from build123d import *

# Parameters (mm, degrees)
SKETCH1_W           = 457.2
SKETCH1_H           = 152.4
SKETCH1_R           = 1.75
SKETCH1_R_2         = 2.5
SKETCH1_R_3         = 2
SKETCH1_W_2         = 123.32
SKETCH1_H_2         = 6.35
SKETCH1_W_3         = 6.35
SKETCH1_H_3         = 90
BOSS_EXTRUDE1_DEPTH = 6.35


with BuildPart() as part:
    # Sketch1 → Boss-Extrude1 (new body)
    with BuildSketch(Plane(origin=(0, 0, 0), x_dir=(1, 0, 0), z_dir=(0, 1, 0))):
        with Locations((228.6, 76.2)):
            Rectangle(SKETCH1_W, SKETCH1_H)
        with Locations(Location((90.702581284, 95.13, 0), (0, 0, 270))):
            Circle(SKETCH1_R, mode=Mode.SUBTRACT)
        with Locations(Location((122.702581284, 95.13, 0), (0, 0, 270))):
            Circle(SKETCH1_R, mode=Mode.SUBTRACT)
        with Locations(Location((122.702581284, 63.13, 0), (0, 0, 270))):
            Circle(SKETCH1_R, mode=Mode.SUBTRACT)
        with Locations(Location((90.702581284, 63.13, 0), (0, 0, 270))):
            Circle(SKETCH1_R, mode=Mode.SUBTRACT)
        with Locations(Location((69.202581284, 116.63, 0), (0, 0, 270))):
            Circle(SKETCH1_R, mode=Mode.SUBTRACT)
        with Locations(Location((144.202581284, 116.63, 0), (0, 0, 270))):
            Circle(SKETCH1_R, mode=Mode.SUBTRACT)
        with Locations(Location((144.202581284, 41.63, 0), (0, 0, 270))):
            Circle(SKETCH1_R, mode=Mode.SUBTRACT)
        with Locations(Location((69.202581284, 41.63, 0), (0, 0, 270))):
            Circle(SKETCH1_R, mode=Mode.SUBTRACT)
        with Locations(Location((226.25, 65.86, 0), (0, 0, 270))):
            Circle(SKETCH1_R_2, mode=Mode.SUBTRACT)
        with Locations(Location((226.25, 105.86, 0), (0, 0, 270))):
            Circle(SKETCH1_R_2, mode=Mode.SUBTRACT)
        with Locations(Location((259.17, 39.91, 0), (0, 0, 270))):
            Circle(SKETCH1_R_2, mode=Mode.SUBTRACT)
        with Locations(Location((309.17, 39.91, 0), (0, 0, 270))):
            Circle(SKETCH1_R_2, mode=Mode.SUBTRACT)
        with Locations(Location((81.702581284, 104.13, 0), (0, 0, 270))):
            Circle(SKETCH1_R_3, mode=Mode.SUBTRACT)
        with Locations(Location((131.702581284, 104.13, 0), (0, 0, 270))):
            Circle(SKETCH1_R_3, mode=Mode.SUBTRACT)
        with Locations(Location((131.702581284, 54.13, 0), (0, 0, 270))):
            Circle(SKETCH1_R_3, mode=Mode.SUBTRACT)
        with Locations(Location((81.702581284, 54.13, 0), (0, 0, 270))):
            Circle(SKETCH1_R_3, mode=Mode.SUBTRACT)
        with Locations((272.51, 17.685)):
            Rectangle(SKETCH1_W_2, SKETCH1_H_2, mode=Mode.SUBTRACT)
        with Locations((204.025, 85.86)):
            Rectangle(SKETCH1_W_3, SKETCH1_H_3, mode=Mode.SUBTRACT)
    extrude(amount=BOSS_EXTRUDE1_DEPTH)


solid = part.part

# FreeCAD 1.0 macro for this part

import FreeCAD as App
import Part
import Sketcher

V = App.Vector

doc = App.newDocument("Part")
body = doc.addObject("PartDesign::Body", "Body")

# Sketch on XZ plane
sketch1 = body.newObject("Sketcher::SketchObject", "Sketch")
sketch1.AttachmentSupport = (doc.getObject("XZ_Plane"), [""])
sketch1.MapMode = "FlatFace"
sketch1.addGeometry([
    Part.LineSegment(V(0, -152.4, 0), V(0, 0, 0)),  # 0
    Part.LineSegment(V(0, 0, 0), V(457.2, 0, 0)),  # 1
    Part.LineSegment(V(457.2, 0, 0), V(457.2, -152.4, 0)),  # 2
    Part.LineSegment(V(457.2, -152.4, 0), V(0, -152.4, 0)),  # 3
    Part.Circle(V(69.2, -41.6, 0), V(0, 0, 1), 1.8),  # 4
    Part.Circle(V(144.2, -41.6, 0), V(0, 0, 1), 1.8),  # 5
    Part.Circle(V(81.7, -54.1, 0), V(0, 0, 1), 2),  # 6
    Part.Circle(V(131.7, -54.1, 0), V(0, 0, 1), 2),  # 7
    Part.Circle(V(90.7, -63.1, 0), V(0, 0, 1), 1.8),  # 8
    Part.Circle(V(122.7, -63.1, 0), V(0, 0, 1), 1.8),  # 9
    Part.Circle(V(259.2, -39.9, 0), V(0, 0, 1), 2.5),  # 10
    Part.LineSegment(V(334.2, -14.5, 0), V(210.8, -14.5, 0)),  # 11
    Part.LineSegment(V(210.8, -14.5, 0), V(210.8, -20.9, 0)),  # 12
    Part.LineSegment(V(210.8, -20.9, 0), V(334.2, -20.9, 0)),  # 13
    Part.LineSegment(V(334.2, -20.9, 0), V(334.2, -14.5, 0)),  # 14
    Part.Circle(V(309.2, -39.9, 0), V(0, 0, 1), 2.5),  # 15
    Part.Circle(V(226.2, -65.9, 0), V(0, 0, 1), 2.5),  # 16
    Part.Circle(V(90.7, -95.1, 0), V(0, 0, 1), 1.8),  # 17
    Part.Circle(V(122.7, -95.1, 0), V(0, 0, 1), 1.8),  # 18
    Part.Circle(V(81.7, -104.1, 0), V(0, 0, 1), 2),  # 19
    Part.Circle(V(131.7, -104.1, 0), V(0, 0, 1), 2),  # 20
    Part.Circle(V(69.2, -116.6, 0), V(0, 0, 1), 1.8),  # 21
    Part.Circle(V(144.2, -116.6, 0), V(0, 0, 1), 1.8),  # 22
    Part.LineSegment(V(207.2, -40.9, 0), V(200.8, -40.9, 0)),  # 23
    Part.LineSegment(V(200.8, -40.9, 0), V(200.8, -130.9, 0)),  # 24
    Part.LineSegment(V(200.8, -130.9, 0), V(207.2, -130.9, 0)),  # 25
    Part.LineSegment(V(207.2, -130.9, 0), V(207.2, -40.9, 0)),  # 26
    Part.Circle(V(226.2, -105.9, 0), V(0, 0, 1), 2.5),  # 27
], False)
sketch1.addConstraint([
    Sketcher.Constraint("Coincident", 0, 2, 1, 1),
    Sketcher.Constraint("Coincident", 1, 2, 2, 1),
    Sketcher.Constraint("Coincident", 2, 2, 3, 1),
    Sketcher.Constraint("Coincident", 3, 2, 0, 1),
    Sketcher.Constraint("Coincident", 11, 2, 12, 1),
    Sketcher.Constraint("Coincident", 12, 2, 13, 1),
    Sketcher.Constraint("Coincident", 13, 2, 14, 1),
    Sketcher.Constraint("Coincident", 14, 2, 11, 1),
    Sketcher.Constraint("Coincident", 23, 2, 24, 1),
    Sketcher.Constraint("Coincident", 24, 2, 25, 1),
    Sketcher.Constraint("Coincident", 25, 2, 26, 1),
    Sketcher.Constraint("Coincident", 26, 2, 23, 1),
    Sketcher.Constraint("Vertical", 0),
    Sketcher.Constraint("Horizontal", 1),
    Sketcher.Constraint("Vertical", 2),
    Sketcher.Constraint("Horizontal", 3),
    Sketcher.Constraint("Horizontal", 11),
    Sketcher.Constraint("Vertical", 12),
    Sketcher.Constraint("Horizontal", 13),
    Sketcher.Constraint("Vertical", 14),
    Sketcher.Constraint("Horizontal", 23),
    Sketcher.Constraint("Vertical", 24),
    Sketcher.Constraint("Horizontal", 25),
    Sketcher.Constraint("Vertical", 26),
    Sketcher.Constraint("Coincident", 0, 2, -1, 1),
    Sketcher.Constraint("Equal", 4, 5),
    Sketcher.Constraint("Equal", 6, 7),
    Sketcher.Constraint("Equal", 5, 8),
    Sketcher.Constraint("Equal", 8, 9),
    Sketcher.Constraint("Equal", 10, 15),
    Sketcher.Constraint("Equal", 15, 16),
    Sketcher.Constraint("Equal", 9, 17),
    Sketcher.Constraint("Equal", 17, 18),
    Sketcher.Constraint("Equal", 7, 19),
    Sketcher.Constraint("Equal", 19, 20),
    Sketcher.Constraint("Equal", 18, 21),
    Sketcher.Constraint("Equal", 21, 22),
    Sketcher.Constraint("Equal", 16, 27),
    Sketcher.Constraint("Horizontal", 4, 3, 5, 3),
    Sketcher.Constraint("Horizontal", 6, 3, 7, 3),
    Sketcher.Constraint("Horizontal", 8, 3, 9, 3),
    Sketcher.Constraint("Horizontal", 10, 3, 15, 3),
    Sketcher.Constraint("Horizontal", 17, 3, 18, 3),
    Sketcher.Constraint("Horizontal", 19, 3, 20, 3),
    Sketcher.Constraint("Horizontal", 21, 3, 22, 3),
    Sketcher.Constraint("Vertical", 8, 3, 17, 3),
    Sketcher.Constraint("Vertical", 9, 3, 18, 3),
    Sketcher.Constraint("Vertical", 6, 3, 19, 3),
    Sketcher.Constraint("Vertical", 7, 3, 20, 3),
    Sketcher.Constraint("Vertical", 4, 3, 21, 3),
    Sketcher.Constraint("Vertical", 5, 3, 22, 3),
    Sketcher.Constraint("Vertical", 16, 3, 27, 3),
    Sketcher.Constraint("Equal", 25, 12),
    Sketcher.Constraint("Diameter", 6, 4.0),
    Sketcher.Constraint("Diameter", 10, 5.0),
    Sketcher.Constraint("Diameter", 4, 3.5),
    Sketcher.Constraint("DistanceY", 24, 2, 24, 1, 90.0),
    Sketcher.Constraint("DistanceX", 1, 1, 1, 2, 457.2),
    Sketcher.Constraint("DistanceY", 0, 1, 0, 2, 152.4),
    Sketcher.Constraint("DistanceX", 4, 3, 5, 3, 75.0),
    Sketcher.Constraint("DistanceX", 6, 3, 7, 3, 50.0),
    Sketcher.Constraint("DistanceX", 6, 3, 8, 3, 9.0),
    Sketcher.Constraint("DistanceY", 8, 3, 6, 3, 9.0),
    Sketcher.Constraint("DistanceX", 9, 3, 7, 3, 9.0),
    Sketcher.Constraint("DistanceX", 10, 3, 15, 3, 50.0),
    Sketcher.Constraint("DistanceY", 17, 3, 8, 3, 32.0),
    Sketcher.Constraint("DistanceY", 19, 3, 17, 3, 9.0),
    Sketcher.Constraint("DistanceY", 27, 3, 16, 3, 40.0),
    Sketcher.Constraint("DistanceY", 16, 3, 12, 2, 45.0),
    Sketcher.Constraint("DistanceX", 15, 3, 13, 2, 25.0),
    Sketcher.Constraint("DistanceX", 23, 2, 12, 2, 10.0),
    Sketcher.Constraint("DistanceY", 23, 2, 12, 2, 20.0),
    Sketcher.Constraint("DistanceX", 11, 2, 11, 1, 123.32),
    Sketcher.Constraint("DistanceX", 23, 2, 23, 1, 6.35),
    Sketcher.Constraint("DistanceX", -1, 1, 25, 2, 207.2),
    Sketcher.Constraint("DistanceX", 4, 3, 6, 3, 12.5),
    Sketcher.Constraint("DistanceY", 6, 3, 4, 3, 12.5),
    Sketcher.Constraint("DistanceY", 21, 3, 19, 3, 12.5),
    Sketcher.Constraint("DistanceX", 11, 2, 16, 3, 15.4),
    Sketcher.Constraint("DistanceY", 10, 3, 11, 2, 25.4),
    Sketcher.Constraint("DistanceY", 4, 3, -1, 1, 41.63),
    Sketcher.Constraint("DistanceY", 10, 3, -1, 1, 39.91),
    Sketcher.Constraint("DistanceX", -1, 1, 4, 3, 69.202581),
])
pad1 = body.newObject("PartDesign::Pad", "Pad")
pad1.Profile = sketch1
pad1.Length = 6.35
pad1.Reversed = True

doc.recompute()
